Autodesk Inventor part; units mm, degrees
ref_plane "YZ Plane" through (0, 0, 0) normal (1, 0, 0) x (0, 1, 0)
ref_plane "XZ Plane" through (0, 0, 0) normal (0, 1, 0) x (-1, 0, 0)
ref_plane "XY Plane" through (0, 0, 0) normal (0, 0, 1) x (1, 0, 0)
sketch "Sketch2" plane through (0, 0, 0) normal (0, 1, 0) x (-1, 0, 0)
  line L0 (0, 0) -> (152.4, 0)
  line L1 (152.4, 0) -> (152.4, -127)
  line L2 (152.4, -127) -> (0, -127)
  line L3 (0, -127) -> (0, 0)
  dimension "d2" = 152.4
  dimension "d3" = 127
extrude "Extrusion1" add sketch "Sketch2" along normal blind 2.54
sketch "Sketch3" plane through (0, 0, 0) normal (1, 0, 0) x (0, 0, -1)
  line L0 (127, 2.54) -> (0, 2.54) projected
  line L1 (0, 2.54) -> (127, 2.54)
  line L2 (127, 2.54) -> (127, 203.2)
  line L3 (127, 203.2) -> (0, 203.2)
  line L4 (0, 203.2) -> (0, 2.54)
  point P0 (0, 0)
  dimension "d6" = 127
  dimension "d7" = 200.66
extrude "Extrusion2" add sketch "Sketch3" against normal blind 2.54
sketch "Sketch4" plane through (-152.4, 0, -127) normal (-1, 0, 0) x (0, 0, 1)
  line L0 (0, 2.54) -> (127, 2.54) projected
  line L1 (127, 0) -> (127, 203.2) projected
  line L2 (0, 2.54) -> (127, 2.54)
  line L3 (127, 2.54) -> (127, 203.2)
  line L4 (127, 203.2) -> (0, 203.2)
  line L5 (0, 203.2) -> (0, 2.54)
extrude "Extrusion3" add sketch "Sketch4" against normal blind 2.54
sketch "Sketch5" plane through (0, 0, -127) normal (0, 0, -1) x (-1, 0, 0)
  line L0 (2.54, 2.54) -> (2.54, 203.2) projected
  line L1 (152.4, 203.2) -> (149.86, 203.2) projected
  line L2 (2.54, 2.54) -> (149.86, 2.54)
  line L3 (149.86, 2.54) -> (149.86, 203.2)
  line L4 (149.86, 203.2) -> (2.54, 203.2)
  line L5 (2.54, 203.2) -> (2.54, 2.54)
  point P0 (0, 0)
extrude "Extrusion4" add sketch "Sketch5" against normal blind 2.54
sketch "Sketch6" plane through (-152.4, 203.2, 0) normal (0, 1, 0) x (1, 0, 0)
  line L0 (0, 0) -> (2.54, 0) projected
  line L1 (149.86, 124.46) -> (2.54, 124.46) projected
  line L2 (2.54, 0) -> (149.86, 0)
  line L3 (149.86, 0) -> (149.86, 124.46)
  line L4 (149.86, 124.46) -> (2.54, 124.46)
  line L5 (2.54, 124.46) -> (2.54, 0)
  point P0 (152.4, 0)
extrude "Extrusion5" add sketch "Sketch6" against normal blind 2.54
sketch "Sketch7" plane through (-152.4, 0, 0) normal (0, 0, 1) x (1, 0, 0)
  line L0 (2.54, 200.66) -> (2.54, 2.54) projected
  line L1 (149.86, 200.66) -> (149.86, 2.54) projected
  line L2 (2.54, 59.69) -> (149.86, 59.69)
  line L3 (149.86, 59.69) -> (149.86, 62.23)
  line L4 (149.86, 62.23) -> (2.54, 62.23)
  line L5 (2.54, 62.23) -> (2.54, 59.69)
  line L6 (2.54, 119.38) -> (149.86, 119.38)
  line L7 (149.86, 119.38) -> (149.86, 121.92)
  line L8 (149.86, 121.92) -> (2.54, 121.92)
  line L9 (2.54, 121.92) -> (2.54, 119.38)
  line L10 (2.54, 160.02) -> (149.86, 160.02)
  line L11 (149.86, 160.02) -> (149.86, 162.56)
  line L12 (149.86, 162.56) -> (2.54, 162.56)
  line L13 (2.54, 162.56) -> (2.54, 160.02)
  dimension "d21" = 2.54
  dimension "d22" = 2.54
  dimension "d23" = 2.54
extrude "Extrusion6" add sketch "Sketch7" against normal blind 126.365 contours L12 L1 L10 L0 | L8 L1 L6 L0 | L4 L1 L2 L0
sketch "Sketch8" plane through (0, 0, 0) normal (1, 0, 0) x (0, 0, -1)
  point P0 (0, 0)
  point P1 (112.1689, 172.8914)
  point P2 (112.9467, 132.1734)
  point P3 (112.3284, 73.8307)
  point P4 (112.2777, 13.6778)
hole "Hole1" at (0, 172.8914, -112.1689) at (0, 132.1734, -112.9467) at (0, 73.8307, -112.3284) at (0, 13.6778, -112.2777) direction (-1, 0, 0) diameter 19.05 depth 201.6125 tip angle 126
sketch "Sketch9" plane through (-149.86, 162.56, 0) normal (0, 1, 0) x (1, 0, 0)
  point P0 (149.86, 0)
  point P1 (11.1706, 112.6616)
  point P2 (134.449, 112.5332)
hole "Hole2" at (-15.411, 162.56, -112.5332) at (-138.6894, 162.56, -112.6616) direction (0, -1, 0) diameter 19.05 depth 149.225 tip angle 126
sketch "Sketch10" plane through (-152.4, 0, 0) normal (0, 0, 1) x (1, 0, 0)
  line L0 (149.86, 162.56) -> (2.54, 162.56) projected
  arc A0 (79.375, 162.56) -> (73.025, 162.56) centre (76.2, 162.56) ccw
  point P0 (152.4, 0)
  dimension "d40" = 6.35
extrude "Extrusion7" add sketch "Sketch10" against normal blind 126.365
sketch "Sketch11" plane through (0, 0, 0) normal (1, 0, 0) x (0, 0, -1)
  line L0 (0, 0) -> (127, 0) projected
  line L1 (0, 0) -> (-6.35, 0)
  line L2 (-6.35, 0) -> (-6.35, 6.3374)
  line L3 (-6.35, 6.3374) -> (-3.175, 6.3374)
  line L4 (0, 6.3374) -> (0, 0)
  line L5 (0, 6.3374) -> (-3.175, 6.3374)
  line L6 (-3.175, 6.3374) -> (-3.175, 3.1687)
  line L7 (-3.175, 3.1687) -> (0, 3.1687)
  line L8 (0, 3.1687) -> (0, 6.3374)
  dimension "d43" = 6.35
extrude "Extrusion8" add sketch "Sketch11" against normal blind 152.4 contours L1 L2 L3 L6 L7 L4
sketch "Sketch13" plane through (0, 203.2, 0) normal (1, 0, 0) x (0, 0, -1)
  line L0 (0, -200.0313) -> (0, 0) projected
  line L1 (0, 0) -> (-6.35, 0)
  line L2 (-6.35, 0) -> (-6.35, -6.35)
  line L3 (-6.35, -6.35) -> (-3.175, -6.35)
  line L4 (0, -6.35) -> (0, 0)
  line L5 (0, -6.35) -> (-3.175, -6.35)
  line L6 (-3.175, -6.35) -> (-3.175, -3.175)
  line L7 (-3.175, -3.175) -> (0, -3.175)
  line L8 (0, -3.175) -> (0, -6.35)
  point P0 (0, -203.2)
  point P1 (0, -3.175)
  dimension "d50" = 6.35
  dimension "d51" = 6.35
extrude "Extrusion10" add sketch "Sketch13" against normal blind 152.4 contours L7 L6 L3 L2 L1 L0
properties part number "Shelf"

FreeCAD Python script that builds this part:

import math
import FreeCAD as App
import Part
import Sketcher
Q = App.Units.Quantity


def add_polygon(sketch, points):
    """Adds a closed chain of lines whose ends are joined by coincident constraints."""
    first, n = sketch.GeometryCount, len(points)
    for a, b in zip(points, points[1:] + points[:1]):
        sketch.addGeometry(Part.LineSegment(App.Vector(*a, 0), App.Vector(*b, 0)), False)
    for i in range(n):
        sketch.addConstraint(Sketcher.Constraint("Coincident", first + i, 2, first + (i + 1) % n, 1))

doc = App.newDocument("Part")
body = doc.addObject("PartDesign::Body", "Body")

# Sketch on XZ plane
sketch1 = body.newObject("Sketcher::SketchObject", "Sketch")
sketch1.AttachmentSupport = (doc.getObject("XZ_Plane"), [""])
sketch1.MapMode = "FlatFace"
add_polygon(sketch1, [(-152, 0), (0, 0), (0, -127), (-152, -127)])  # lines 0-3
sketch1.addConstraint([
    Sketcher.Constraint("Horizontal", 0),
    Sketcher.Constraint("Vertical", 1),
    Sketcher.Constraint("Horizontal", 2),
    Sketcher.Constraint("Vertical", 3),
    Sketcher.Constraint("Coincident", 0, 2, -1, 1),
    Sketcher.Constraint("DistanceX", 0, 1, 0, 2, Q("6 in")),
    Sketcher.Constraint("DistanceY", 1, 2, 1, 1, Q("5 in")),
])
pad1 = body.newObject("PartDesign::Pad", "Pad")
pad1.Profile = sketch1
pad1.Length = Q("0.1 in")
pad1.Reversed = True

# Sketch on YZ plane
sketch2 = body.newObject("Sketcher::SketchObject", "Sketch001")
sketch2.AttachmentSupport = (doc.getObject("YZ_Plane"), [""])
sketch2.MapMode = "FlatFace"
add_polygon(sketch2, [(3, 0), (3, -127), (203, -127), (203, 0)])  # lines 0-3
sketch2.addConstraint([
    Sketcher.Constraint("Vertical", 0),
    Sketcher.Constraint("Horizontal", 1),
    Sketcher.Constraint("Vertical", 2),
    Sketcher.Constraint("Horizontal", 3),
    Sketcher.Constraint("PointOnObject", 2, 2, -1),
    Sketcher.Constraint("DistanceY", 0, 2, 0, 1, Q("5 in")),
    Sketcher.Constraint("DistanceX", 1, 1, 1, 2, Q("7.9 in")),
    Sketcher.Constraint("DistanceX", -1, 1, 1, 2, Q("8 in")),
])
pad2 = body.newObject("PartDesign::Pad", "Pad001")
pad2.Profile = sketch2
pad2.Length = Q("0.1 in")
pad2.Reversed = True

# Sketch on YZ plane
sketch3 = body.newObject("Sketcher::SketchObject", "Sketch002")
sketch3.AttachmentSupport = (doc.getObject("YZ_Plane"), [""])
sketch3.MapMode = "FlatFace"
sketch3.AttachmentOffset = App.Placement(App.Vector(0, 0, -6 * 25.4), App.Rotation())
add_polygon(sketch3, [(203, -127), (3, -127), (3, 0), (203, 0)])  # lines 0-3
sketch3.addConstraint([
    Sketcher.Constraint("Horizontal", 0),
    Sketcher.Constraint("Vertical", 1),
    Sketcher.Constraint("Horizontal", 2),
    Sketcher.Constraint("Vertical", 3),
    Sketcher.Constraint("PointOnObject", 1, 2, -1),
    Sketcher.Constraint("DistanceY", 1, 1, 1, 2, Q("5 in")),
    Sketcher.Constraint("DistanceX", 0, 2, 0, 1, Q("7.9 in")),
    Sketcher.Constraint("DistanceX", -1, 1, 2, 2, Q("8 in")),
])
pad3 = body.newObject("PartDesign::Pad", "Pad002")
pad3.Profile = sketch3
pad3.Length = Q("0.1 in")

# Sketch on XY plane
sketch4 = body.newObject("Sketcher::SketchObject", "Sketch003")
sketch4.AttachmentSupport = (doc.getObject("XY_Plane"), [""])
sketch4.MapMode = "FlatFace"
sketch4.AttachmentOffset = App.Placement(App.Vector(0, 0, -5 * 25.4), App.Rotation())
add_polygon(sketch4, [(-3, 203), (-3, 3), (-150, 3), (-150, 203)])  # lines 0-3
sketch4.addConstraint([
    Sketcher.Constraint("Vertical", 0),
    Sketcher.Constraint("Horizontal", 1),
    Sketcher.Constraint("Vertical", 2),
    Sketcher.Constraint("Horizontal", 3),
    Sketcher.Constraint("DistanceX", 1, 2, 1, 1, Q("5.8 in")),
    Sketcher.Constraint("DistanceY", 0, 2, 0, 1, Q("7.9 in")),
    Sketcher.Constraint("DistanceY", -1, 1, 2, 2, Q("8 in")),
    Sketcher.Constraint("DistanceX", 0, 2, -1, 1, Q("0.1 in")),
])
pad4 = body.newObject("PartDesign::Pad", "Pad003")
pad4.Profile = sketch4
pad4.Length = Q("0.1 in")

# Sketch on XZ plane
sketch5 = body.newObject("Sketcher::SketchObject", "Sketch004")
sketch5.AttachmentSupport = (doc.getObject("XZ_Plane"), [""])
sketch5.MapMode = "FlatFace"
sketch5.AttachmentOffset = App.Placement(App.Vector(0, 0, -8 * 25.4), App.Rotation())
add_polygon(sketch5, [(-3, 0), (-3, -124), (-150, -124), (-150, 0)])  # lines 0-3
sketch5.addConstraint([
    Sketcher.Constraint("Vertical", 0),
    Sketcher.Constraint("Horizontal", 1),
    Sketcher.Constraint("Vertical", 2),
    Sketcher.Constraint("Horizontal", 3),
    Sketcher.Constraint("PointOnObject", 2, 2, -1),
    Sketcher.Constraint("DistanceX", 1, 2, 1, 1, Q("5.8 in")),
    Sketcher.Constraint("DistanceY", 0, 2, 0, 1, Q("4.9 in")),
    Sketcher.Constraint("DistanceX", 0, 2, -1, 1, Q("0.1 in")),
])
pad5 = body.newObject("PartDesign::Pad", "Pad004")
pad5.Profile = sketch5
pad5.Length = Q("0.1 in")

# Sketch on XY plane
sketch6 = body.newObject("Sketcher::SketchObject", "Sketch005")
sketch6.AttachmentSupport = (doc.getObject("XY_Plane"), [""])
sketch6.MapMode = "FlatFace"
add_polygon(sketch6, [(-2.5, 162.6), (-149.9, 162.6), (-149.9, 160), (-2.5, 160)])  # lines 0-3
add_polygon(sketch6, [(-2.5, 121.9), (-149.9, 121.9), (-149.9, 119.4), (-2.5, 119.4)])  # lines 4-7
add_polygon(sketch6, [(-2.5, 62.2), (-149.9, 62.2), (-149.9, 59.7), (-2.5, 59.7)])  # lines 8-11
sketch6.addConstraint([
    Sketcher.Constraint("Horizontal", 0),
    Sketcher.Constraint("Vertical", 1),
    Sketcher.Constraint("Horizontal", 2),
    Sketcher.Constraint("Vertical", 3),
    Sketcher.Constraint("Horizontal", 4),
    Sketcher.Constraint("Vertical", 5),
    Sketcher.Constraint("Horizontal", 6),
    Sketcher.Constraint("Vertical", 7),
    Sketcher.Constraint("Horizontal", 8),
    Sketcher.Constraint("Vertical", 9),
    Sketcher.Constraint("Horizontal", 10),
    Sketcher.Constraint("Vertical", 11),
    Sketcher.Constraint("Vertical", 1, 2, 4, 2),
    Sketcher.Constraint("Vertical", 3, 2, 6, 2),
    Sketcher.Constraint("Vertical", 5, 2, 8, 2),
    Sketcher.Constraint("Vertical", 7, 2, 10, 2),
    Sketcher.Constraint("Equal", 3, 5),
    Sketcher.Constraint("Equal", 7, 9),
    Sketcher.Constraint("DistanceY", 1, 2, 1, 1, Q("0.1 in")),
    Sketcher.Constraint("DistanceX", 2, 2, -1, 1, Q("0.1 in")),
    Sketcher.Constraint("DistanceX", 0, 2, 0, 1, Q("5.8 in")),
    Sketcher.Constraint("DistanceY", -1, 1, 0, 2, Q("6.4 in")),
    Sketcher.Constraint("DistanceY", -1, 1, 4, 2, Q("4.8 in")),
    Sketcher.Constraint("DistanceY", -1, 1, 8, 2, Q("2.45 in")),
])
pad6 = body.newObject("PartDesign::Pad", "Pad005")
pad6.Profile = sketch6
pad6.Length = Q("4.975 in")
pad6.Reversed = True

# Sketch on YZ plane
sketch7 = body.newObject("Sketcher::SketchObject", "Sketch006")
sketch7.AttachmentSupport = (doc.getObject("YZ_Plane"), [""])
sketch7.MapMode = "FlatFace"
sketch7.addGeometry([
    Part.Circle(App.Vector(173, -112, 0), App.Vector(0, 0, 1), 10),
    Part.Circle(App.Vector(132, -113, 0), App.Vector(0, 0, 1), 10),
    Part.Circle(App.Vector(74, -112, 0), App.Vector(0, 0, 1), 10),
    Part.Circle(App.Vector(14, -112, 0), App.Vector(0, 0, 1), 10),
], False)
sketch7.addConstraint([
    Sketcher.Constraint("Equal", 0, 1),
    Sketcher.Constraint("Equal", 1, 2),
    Sketcher.Constraint("Equal", 2, 3),
    Sketcher.Constraint("Diameter", 0, Q("0.75 in")),
    Sketcher.Constraint("DistanceY", 2, 3, 3, 3, Q("0.002 in")),
    Sketcher.Constraint("DistanceY", 0, 3, -1, 1, Q("4.4161 in")),
    Sketcher.Constraint("DistanceX", -1, 1, 3, 3, Q("0.5385 in")),
    Sketcher.Constraint("DistanceX", -1, 1, 0, 3, Q("172.8914 mm")),
    Sketcher.Constraint("DistanceX", -1, 1, 1, 3, Q("132.1734 mm")),
    Sketcher.Constraint("DistanceY", 1, 3, -1, 1, Q("112.9467 mm")),
    Sketcher.Constraint("DistanceX", -1, 1, 2, 3, Q("73.8307 mm")),
    Sketcher.Constraint("DistanceY", 2, 3, -1, 1, Q("112.3284 mm")),
])
doc.recompute()
hole = body.newObject("PartDesign::Hole", "Hole")
hole.Profile = sketch7
hole.ThreadType = "None"
hole.Diameter = Q("0.75 in")
hole.DepthType = "Dimension"
hole.Depth = Q("7.9375 in")
hole.DrillPoint = "Angled"
hole.DrillPointAngle = 126

# Sketch on XZ plane
sketch8 = body.newObject("Sketcher::SketchObject", "Sketch007")
sketch8.AttachmentSupport = (doc.getObject("XZ_Plane"), [""])
sketch8.MapMode = "FlatFace"
sketch8.AttachmentOffset = App.Placement(App.Vector(0, 0, -6.4 * 25.4), App.Rotation())
sketch8.addGeometry([
    Part.Circle(App.Vector(-15, -113, 0), App.Vector(0, 0, 1), 10),
    Part.Circle(App.Vector(-139, -113, 0), App.Vector(0, 0, 1), 10),
], False)
sketch8.addConstraint([
    Sketcher.Constraint("Equal", 0, 1),
    Sketcher.Constraint("Diameter", 0, Q("0.75 in")),
    Sketcher.Constraint("DistanceY", 1, 3, -1, 1, Q("4.4355 in")),
    Sketcher.Constraint("DistanceX", 0, 3, -1, 1, Q("15.411 mm")),
    Sketcher.Constraint("DistanceY", 0, 3, -1, 1, Q("112.5332 mm")),
    Sketcher.Constraint("DistanceX", 1, 3, -1, 1, Q("138.6894 mm")),
])
doc.recompute()
hole2 = body.newObject("PartDesign::Hole", "Hole001")
hole2.Profile = sketch8
hole2.ThreadType = "None"
hole2.Diameter = Q("0.75 in")
hole2.DepthType = "Dimension"
hole2.Depth = Q("5.875 in")
hole2.DrillPoint = "Angled"
hole2.DrillPointAngle = 126
hole2.Reversed = True

# Sketch on XY plane
sketch9 = body.newObject("Sketcher::SketchObject", "Sketch008")
sketch9.AttachmentSupport = (doc.getObject("XY_Plane"), [""])
sketch9.MapMode = "FlatFace"
sketch9.addGeometry([
    Part.LineSegment(App.Vector(-79.4, 162.6, 0), App.Vector(-73, 162.6, 0)),
    Part.ArcOfCircle(Part.Circle(App.Vector(-76.2, 162.6, 0), App.Vector(0, 0, 1), 3.2), math.radians(0), math.radians(180)),
], False)
sketch9.addConstraint([
    Sketcher.Constraint("Coincident", 0, 1, 1, 2),
    Sketcher.Constraint("Coincident", 1, 1, 0, 2),
    Sketcher.Constraint("Horizontal", 0),
    Sketcher.Constraint("Horizontal", 1, 3, 0, 1),
    Sketcher.Constraint("Radius", 1, Q("0.125 in")),
    Sketcher.Constraint("DistanceX", 1, 3, -1, 1, Q("3 in")),
    Sketcher.Constraint("DistanceY", -1, 1, 1, 3, Q("6.4 in")),
])
pad7 = body.newObject("PartDesign::Pad", "Pad006")
pad7.Profile = sketch9
pad7.Length = Q("4.975 in")
pad7.Reversed = True

# Sketch on YZ plane
sketch10 = body.newObject("Sketcher::SketchObject", "Sketch009")
sketch10.AttachmentSupport = (doc.getObject("YZ_Plane"), [""])
sketch10.MapMode = "FlatFace"
add_polygon(sketch10, [(0, 6.3), (0, 0), (3.2, 0), (3.2, 3.2), (6.3, 3.2), (6.3, 6.3)])  # lines 0-5
sketch10.addConstraint([
    Sketcher.Constraint("Vertical", 0),
    Sketcher.Constraint("Horizontal", 1),
    Sketcher.Constraint("Vertical", 2),
    Sketcher.Constraint("Horizontal", 3),
    Sketcher.Constraint("Vertical", 4),
    Sketcher.Constraint("Horizontal", 5),
    Sketcher.Constraint("Coincident", 0, 2, -1, 1),
    Sketcher.Constraint("Equal", 1, 3),
    Sketcher.Constraint("Equal", 2, 4),
    Sketcher.Constraint("DistanceY", 0, 2, 0, 1, Q("0.25 in")),
    Sketcher.Constraint("DistanceX", 5, 2, 5, 1, Q("0.2495 in")),
])
pad8 = body.newObject("PartDesign::Pad", "Pad007")
pad8.Profile = sketch10
pad8.Length = Q("6 in")
pad8.Reversed = True

# Sketch on YZ plane
sketch11 = body.newObject("Sketcher::SketchObject", "Sketch010")
sketch11.AttachmentSupport = (doc.getObject("YZ_Plane"), [""])
sketch11.MapMode = "FlatFace"
add_polygon(sketch11, [(200, 3.2), (200, 0), (203.2, 0), (203.2, 6.3), (196.8, 6.3), (196.8, 3.2)])  # lines 0-5
sketch11.addConstraint([
    Sketcher.Constraint("Vertical", 0),
    Sketcher.Constraint("Horizontal", 1),
    Sketcher.Constraint("Vertical", 2),
    Sketcher.Constraint("Horizontal", 3),
    Sketcher.Constraint("Vertical", 4),
    Sketcher.Constraint("Horizontal", 5),
    Sketcher.Constraint("PointOnObject", 0, 2, -1),
    Sketcher.Constraint("Equal", 1, 5),
    Sketcher.Constraint("Equal", 5, 0),
    Sketcher.Constraint("Equal", 3, 2),
    Sketcher.Constraint("DistanceX", 3, 2, 3, 1, Q("0.25 in")),
    Sketcher.Constraint("DistanceX", -1, 1, 1, 2, Q("8 in")),
])
pad9 = body.newObject("PartDesign::Pad", "Pad008")
pad9.Profile = sketch11
pad9.Length = Q("6 in")
pad9.Reversed = True

doc.recompute()
